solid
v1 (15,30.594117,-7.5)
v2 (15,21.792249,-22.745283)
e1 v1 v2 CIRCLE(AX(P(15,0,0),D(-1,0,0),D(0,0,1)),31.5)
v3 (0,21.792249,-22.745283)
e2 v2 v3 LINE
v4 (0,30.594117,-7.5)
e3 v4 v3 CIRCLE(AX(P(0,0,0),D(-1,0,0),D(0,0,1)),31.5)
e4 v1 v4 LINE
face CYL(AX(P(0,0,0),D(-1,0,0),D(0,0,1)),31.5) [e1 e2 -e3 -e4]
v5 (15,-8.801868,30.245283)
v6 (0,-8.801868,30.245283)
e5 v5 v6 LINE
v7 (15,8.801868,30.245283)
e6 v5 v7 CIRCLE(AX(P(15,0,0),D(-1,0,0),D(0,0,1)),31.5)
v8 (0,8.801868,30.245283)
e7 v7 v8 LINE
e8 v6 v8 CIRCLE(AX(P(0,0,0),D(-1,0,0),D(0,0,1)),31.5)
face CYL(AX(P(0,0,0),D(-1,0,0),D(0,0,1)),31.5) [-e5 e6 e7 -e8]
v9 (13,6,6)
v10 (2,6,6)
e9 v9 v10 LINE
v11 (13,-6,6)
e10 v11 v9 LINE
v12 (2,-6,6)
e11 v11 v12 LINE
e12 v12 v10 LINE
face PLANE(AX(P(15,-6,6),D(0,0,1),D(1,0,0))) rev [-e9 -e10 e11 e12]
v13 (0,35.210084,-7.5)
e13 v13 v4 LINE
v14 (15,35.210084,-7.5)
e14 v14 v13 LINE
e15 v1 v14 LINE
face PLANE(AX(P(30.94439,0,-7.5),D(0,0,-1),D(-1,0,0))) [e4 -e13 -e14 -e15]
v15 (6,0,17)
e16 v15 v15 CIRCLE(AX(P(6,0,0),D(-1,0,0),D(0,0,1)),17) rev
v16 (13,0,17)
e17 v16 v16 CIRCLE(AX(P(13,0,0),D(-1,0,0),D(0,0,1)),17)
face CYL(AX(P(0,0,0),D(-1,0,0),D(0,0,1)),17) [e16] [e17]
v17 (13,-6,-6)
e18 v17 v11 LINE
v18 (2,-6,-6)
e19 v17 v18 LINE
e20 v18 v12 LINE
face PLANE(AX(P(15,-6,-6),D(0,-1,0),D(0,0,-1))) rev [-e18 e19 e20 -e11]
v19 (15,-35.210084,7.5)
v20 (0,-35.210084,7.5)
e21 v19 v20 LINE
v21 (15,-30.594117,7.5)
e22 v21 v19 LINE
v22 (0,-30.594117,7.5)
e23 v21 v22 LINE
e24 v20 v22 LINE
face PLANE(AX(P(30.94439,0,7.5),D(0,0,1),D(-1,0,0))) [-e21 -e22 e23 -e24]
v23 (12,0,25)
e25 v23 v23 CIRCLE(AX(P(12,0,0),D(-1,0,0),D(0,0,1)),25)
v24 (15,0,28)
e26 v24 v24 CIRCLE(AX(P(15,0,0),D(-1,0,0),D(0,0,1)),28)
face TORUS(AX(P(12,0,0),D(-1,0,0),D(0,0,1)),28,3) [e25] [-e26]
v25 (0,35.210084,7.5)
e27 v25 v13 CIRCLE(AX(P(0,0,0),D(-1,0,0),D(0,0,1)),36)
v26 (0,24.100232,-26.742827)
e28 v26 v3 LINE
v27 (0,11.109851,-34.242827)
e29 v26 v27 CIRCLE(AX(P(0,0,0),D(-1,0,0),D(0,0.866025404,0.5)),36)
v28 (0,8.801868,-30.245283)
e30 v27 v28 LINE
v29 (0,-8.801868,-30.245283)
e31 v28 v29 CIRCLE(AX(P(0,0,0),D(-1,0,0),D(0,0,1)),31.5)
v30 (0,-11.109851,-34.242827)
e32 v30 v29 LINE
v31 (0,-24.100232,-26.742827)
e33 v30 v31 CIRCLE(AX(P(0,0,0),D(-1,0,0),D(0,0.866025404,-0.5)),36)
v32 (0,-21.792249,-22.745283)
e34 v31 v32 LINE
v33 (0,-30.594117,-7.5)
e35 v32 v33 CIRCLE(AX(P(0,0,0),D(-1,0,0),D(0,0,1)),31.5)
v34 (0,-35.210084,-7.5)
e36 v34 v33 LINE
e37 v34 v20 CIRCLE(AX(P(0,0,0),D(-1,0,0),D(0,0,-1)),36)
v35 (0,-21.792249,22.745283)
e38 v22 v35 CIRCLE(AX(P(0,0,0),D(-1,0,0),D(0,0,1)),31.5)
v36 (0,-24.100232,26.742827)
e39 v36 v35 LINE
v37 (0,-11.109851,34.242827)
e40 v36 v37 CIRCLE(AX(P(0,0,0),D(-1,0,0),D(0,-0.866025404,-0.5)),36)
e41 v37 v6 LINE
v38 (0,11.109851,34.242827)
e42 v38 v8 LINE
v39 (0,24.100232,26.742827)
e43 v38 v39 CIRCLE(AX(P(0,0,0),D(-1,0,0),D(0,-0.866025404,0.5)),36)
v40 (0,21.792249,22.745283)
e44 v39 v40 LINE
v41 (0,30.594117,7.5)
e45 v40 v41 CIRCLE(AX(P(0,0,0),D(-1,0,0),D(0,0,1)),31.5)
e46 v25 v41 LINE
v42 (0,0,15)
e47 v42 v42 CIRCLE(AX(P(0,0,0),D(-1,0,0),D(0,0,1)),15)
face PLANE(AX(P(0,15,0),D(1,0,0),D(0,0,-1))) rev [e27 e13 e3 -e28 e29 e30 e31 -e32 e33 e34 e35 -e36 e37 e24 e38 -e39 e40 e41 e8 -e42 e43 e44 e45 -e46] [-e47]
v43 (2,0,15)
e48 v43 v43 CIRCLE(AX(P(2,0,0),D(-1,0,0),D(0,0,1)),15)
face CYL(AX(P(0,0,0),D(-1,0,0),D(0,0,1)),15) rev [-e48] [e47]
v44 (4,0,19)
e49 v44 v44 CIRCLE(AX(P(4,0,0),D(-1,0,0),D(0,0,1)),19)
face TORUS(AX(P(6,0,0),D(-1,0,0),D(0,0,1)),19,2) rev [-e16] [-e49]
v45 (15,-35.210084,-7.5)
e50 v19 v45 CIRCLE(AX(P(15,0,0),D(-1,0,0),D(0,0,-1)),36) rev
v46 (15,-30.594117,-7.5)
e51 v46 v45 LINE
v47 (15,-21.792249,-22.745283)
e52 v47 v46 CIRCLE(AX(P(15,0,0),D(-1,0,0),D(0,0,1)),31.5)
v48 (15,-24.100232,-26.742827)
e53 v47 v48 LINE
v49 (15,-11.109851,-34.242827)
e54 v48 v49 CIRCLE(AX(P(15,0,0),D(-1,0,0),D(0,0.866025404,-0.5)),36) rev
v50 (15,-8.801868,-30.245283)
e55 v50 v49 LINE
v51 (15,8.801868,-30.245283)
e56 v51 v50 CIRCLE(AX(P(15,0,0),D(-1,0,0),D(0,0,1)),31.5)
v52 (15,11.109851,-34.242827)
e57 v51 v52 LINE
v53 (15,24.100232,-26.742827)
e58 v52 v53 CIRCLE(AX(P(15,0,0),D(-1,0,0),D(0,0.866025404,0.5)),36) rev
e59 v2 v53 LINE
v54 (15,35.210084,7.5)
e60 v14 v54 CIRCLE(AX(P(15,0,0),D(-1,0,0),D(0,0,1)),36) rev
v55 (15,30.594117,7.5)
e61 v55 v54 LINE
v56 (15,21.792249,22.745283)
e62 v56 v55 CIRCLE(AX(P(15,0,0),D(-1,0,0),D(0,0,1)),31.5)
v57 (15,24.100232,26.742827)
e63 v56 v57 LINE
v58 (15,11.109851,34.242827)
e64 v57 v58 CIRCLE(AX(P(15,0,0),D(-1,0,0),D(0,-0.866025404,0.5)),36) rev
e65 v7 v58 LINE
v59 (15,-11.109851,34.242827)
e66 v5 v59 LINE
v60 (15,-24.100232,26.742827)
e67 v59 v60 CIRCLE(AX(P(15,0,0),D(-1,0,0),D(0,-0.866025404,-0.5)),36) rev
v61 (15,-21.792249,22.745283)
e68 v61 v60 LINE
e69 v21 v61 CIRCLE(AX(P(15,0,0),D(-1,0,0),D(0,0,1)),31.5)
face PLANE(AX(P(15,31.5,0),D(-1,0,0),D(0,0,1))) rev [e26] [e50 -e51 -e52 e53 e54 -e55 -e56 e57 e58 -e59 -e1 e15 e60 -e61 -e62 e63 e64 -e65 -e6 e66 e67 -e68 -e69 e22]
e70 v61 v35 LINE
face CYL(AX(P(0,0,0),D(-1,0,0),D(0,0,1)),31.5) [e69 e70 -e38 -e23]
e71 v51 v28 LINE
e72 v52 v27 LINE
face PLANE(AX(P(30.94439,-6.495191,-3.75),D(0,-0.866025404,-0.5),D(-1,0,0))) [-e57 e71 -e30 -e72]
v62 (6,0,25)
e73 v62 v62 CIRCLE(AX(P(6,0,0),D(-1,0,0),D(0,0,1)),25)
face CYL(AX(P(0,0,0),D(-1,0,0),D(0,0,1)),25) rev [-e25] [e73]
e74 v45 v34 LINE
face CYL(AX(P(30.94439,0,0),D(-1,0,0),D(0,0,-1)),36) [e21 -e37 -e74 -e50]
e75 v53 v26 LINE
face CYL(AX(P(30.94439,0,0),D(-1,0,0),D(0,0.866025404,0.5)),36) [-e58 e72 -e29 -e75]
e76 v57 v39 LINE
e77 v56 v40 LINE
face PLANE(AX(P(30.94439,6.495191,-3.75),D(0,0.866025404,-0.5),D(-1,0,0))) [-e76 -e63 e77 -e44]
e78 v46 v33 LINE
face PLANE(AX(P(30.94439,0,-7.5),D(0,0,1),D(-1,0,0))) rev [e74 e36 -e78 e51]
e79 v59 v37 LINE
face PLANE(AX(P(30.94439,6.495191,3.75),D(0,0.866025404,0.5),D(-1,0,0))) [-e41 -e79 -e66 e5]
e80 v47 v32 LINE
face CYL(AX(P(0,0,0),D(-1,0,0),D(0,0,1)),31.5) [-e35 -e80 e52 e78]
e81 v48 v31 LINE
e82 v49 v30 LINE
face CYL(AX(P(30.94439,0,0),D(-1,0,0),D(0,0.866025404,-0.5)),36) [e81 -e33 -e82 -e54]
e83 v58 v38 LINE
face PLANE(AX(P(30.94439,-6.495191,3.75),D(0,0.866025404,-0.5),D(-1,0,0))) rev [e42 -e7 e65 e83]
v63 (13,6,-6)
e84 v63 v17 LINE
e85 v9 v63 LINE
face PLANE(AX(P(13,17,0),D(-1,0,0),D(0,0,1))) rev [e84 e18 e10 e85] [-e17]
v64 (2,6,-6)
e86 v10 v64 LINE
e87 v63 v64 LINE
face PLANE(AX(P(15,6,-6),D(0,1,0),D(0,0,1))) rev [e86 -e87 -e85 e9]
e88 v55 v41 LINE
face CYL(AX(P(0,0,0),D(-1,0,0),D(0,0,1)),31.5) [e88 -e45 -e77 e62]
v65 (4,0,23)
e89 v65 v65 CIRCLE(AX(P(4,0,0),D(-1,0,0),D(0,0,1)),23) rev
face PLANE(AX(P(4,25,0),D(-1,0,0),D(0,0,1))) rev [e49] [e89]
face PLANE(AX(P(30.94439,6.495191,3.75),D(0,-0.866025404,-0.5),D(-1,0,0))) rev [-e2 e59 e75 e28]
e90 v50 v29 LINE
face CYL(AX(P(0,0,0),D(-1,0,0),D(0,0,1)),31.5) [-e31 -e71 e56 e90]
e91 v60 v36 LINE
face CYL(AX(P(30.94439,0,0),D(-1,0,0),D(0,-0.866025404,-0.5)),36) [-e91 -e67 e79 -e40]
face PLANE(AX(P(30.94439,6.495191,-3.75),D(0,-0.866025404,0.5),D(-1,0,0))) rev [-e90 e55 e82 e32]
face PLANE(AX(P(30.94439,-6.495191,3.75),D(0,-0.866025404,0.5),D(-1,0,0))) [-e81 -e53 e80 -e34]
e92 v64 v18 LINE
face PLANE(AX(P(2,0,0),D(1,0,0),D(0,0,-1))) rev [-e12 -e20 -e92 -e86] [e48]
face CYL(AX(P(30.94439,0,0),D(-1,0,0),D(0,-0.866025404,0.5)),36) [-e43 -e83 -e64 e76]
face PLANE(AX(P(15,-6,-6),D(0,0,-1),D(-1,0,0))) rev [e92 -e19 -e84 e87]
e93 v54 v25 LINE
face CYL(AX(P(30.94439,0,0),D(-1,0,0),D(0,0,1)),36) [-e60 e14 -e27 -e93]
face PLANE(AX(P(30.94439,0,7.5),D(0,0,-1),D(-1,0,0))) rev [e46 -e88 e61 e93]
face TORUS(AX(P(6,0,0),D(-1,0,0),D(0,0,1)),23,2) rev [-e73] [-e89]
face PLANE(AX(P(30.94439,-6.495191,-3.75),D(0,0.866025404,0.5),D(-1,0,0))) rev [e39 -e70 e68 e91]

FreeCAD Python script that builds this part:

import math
import FreeCAD as App
import Part
import Sketcher

V = App.Vector
Q = App.Units.Quantity


def edges_at(feature, points):
    """Names of the edges that pass closest to the given points."""
    edges = feature.Shape.Edges
    near = lambda p: min(range(len(edges)), key=lambda i: edges[i].distToShape(Part.Vertex(*p))[0])
    return sorted({f"Edge{near(p) + 1}" for p in points})


def add_polygon(sketch, points):
    """Adds a closed chain of lines whose ends are joined by coincident constraints."""
    first, n = sketch.GeometryCount, len(points)
    for a, b in zip(points, points[1:] + points[:1]):
        sketch.addGeometry(Part.LineSegment(App.Vector(*a, 0), App.Vector(*b, 0)), False)
    for i in range(n):
        sketch.addConstraint(Sketcher.Constraint("Coincident", first + i, 2, first + (i + 1) % n, 1))

doc = App.newDocument("Part")
body = doc.addObject("PartDesign::Body", "Body")

sketch1 = body.newObject("Sketcher::SketchObject", "Sketch")
sketch1.AttachmentSupport = (doc.getObject("XY_Plane"), [""])
sketch1.MapMode = "FlatFace"
sketch1.addGeometry([
    Part.LineSegment(V(2, 15, 0), V(2, 0, 0)),
    Part.LineSegment(V(2, 0, 0), V(13, 0, 0)),
    Part.LineSegment(V(13, 0, 0), V(13, 17, 0)),
    Part.LineSegment(V(13, 17, 0), V(4, 17, 0)),
    Part.LineSegment(V(4, 17, 0), V(4, 25, 0)),
    Part.LineSegment(V(4, 25, 0), V(12, 25, 0)),
    Part.ArcOfCircle(Part.Circle(V(12, 28, 0), V(0, 0, 1), 3), math.radians(-90), math.radians(0)),
    Part.LineSegment(V(15, 28, 0), V(15, 31.5, 0)),
    Part.LineSegment(V(15, 31.5, 0), V(0, 31.5, 0)),
    Part.LineSegment(V(0, 31.5, 0), V(0, 15, 0)),
    Part.LineSegment(V(0, 15, 0), V(2, 15, 0)),
], False)
sketch1.addConstraint([
    Sketcher.Constraint("Coincident", 0, 2, 1, 1),
    Sketcher.Constraint("Coincident", 1, 2, 2, 1),
    Sketcher.Constraint("Coincident", 2, 2, 3, 1),
    Sketcher.Constraint("Coincident", 3, 2, 4, 1),
    Sketcher.Constraint("Coincident", 4, 2, 5, 1),
    Sketcher.Constraint("Tangent", 5, 2, 6, 1),
    Sketcher.Constraint("Tangent", 6, 2, 7, 1),
    Sketcher.Constraint("Coincident", 7, 2, 8, 1),
    Sketcher.Constraint("Coincident", 8, 2, 9, 1),
    Sketcher.Constraint("Coincident", 9, 2, 10, 1),
    Sketcher.Constraint("Coincident", 10, 2, 0, 1),
    Sketcher.Constraint("Vertical", 0),
    Sketcher.Constraint("Horizontal", 1),
    Sketcher.Constraint("Vertical", 2),
    Sketcher.Constraint("Horizontal", 3),
    Sketcher.Constraint("Vertical", 4),
    Sketcher.Constraint("Horizontal", 5),
    Sketcher.Constraint("Vertical", 7),
    Sketcher.Constraint("Horizontal", 8),
    Sketcher.Constraint("Vertical", 9),
    Sketcher.Constraint("Horizontal", 10),
    Sketcher.Constraint("PointOnObject", 0, 2, -1),
    Sketcher.Constraint("PointOnObject", 8, 2, -2),
    Sketcher.Constraint("Equal", 8, 0),
    Sketcher.Constraint("Equal", 5, 4),
    Sketcher.Constraint("Radius", 6, Q("3 mm")),
    Sketcher.Constraint("DistanceX", 1, 1, 1, 2, Q("11 mm")),
    Sketcher.Constraint("DistanceX", 3, 2, 3, 1, Q("9 mm")),
    Sketcher.Constraint("DistanceX", 5, 1, 5, 2, Q("8 mm")),
    Sketcher.Constraint("DistanceX", 8, 2, 8, 1, Q("15 mm")),
    Sketcher.Constraint("DistanceY", 2, 1, 2, 2, Q("17 mm")),
    Sketcher.Constraint("DistanceY", 7, 1, 7, 2, Q("3.5 mm")),
])
revolution = body.newObject("PartDesign::Revolution", "Revolution")
revolution.Profile = sketch1
revolution.ReferenceAxis = (sketch1, ["H_Axis"])
revolution.Angle = 360

sketch2 = body.newObject("Sketcher::SketchObject", "Sketch001")
sketch2.AttachmentSupport = (doc.getObject("YZ_Plane"), [""])
sketch2.MapMode = "FlatFace"
sketch2.AttachmentOffset = App.Placement(V(0, 0, 2), App.Rotation())
add_polygon(sketch2, [(6, -6), (-6, -6), (-6, 6), (6, 6)])
sketch2.addConstraint([
    Sketcher.Constraint("Horizontal", 0),
    Sketcher.Constraint("Vertical", 1),
    Sketcher.Constraint("Horizontal", 2),
    Sketcher.Constraint("Vertical", 3),
    Sketcher.Constraint("Symmetric", 0, 2, 2, 2, -1, 1),
    Sketcher.Constraint("Equal", 2, 1),
    Sketcher.Constraint("DistanceX", 0, 2, 0, 1, Q("12 mm")),
])
pocket1 = body.newObject("PartDesign::Pocket", "Pocket")
pocket1.Profile = sketch2
pocket1.Type = "ThroughAll"
pocket1.Reversed = True

sketch3 = body.newObject("Sketcher::SketchObject", "Sketch002")
sketch3.AttachmentSupport = (doc.getObject("YZ_Plane"), [""])
sketch3.MapMode = "FlatFace"
sketch3.AttachmentOffset = App.Placement(V(0, 0, 15), App.Rotation())
sketch3.addGeometry([
    Part.ArcOfCircle(Part.Circle(V(0, 0, 0), V(0, 0, 1), 36), math.radians(-12.024699), math.radians(12.024699)),
    Part.LineSegment(V(35.210084, -7.5, 0), V(30.594117, -7.5, 0)),
    Part.ArcOfCircle(Part.Circle(V(0, 0, 0), V(0, 0, 1), 31.5), math.radians(-13.774147), math.radians(13.774147)),
    Part.LineSegment(V(30.594117, 7.5, 0), V(35.210084, 7.5, 0)),
], False)
sketch3.addConstraint([
    Sketcher.Constraint("Coincident", 0, 1, 1, 1),
    Sketcher.Constraint("Coincident", 1, 2, 2, 1),
    Sketcher.Constraint("Coincident", 2, 2, 3, 1),
    Sketcher.Constraint("Coincident", 3, 2, 0, 2),
    Sketcher.Constraint("Horizontal", 1),
    Sketcher.Constraint("Horizontal", 3),
    Sketcher.Constraint("Coincident", 0, 3, -1, 1),
    Sketcher.Constraint("Coincident", 2, 3, -1, 1),
    Sketcher.Constraint("Vertical", 1, 2, 2, 2),
    Sketcher.Constraint("Radius", 0, Q("36 mm")),
    Sketcher.Constraint("Radius", 2, Q("31.5 mm")),
    Sketcher.Constraint("DistanceY", 1, 2, 2, 2, Q("15 mm")),
])
pad1 = body.newObject("PartDesign::Pad", "Pad")
pad1.Profile = sketch3
pad1.Length = 15
pad1.Reversed = True
doc.recompute()

polarpattern = body.newObject("PartDesign::PolarPattern", "PolarPattern")
polarpattern.Originals = [pad1]
polarpattern.Axis = (doc.getObject("X_Axis"), [""])
polarpattern.Angle = 360
polarpattern.Occurrences = 6
body.Tip = polarpattern
doc.recompute()

fillet = body.newObject("PartDesign::Fillet", "Fillet")
fillet.Base = (polarpattern, edges_at(polarpattern, [(4, 0, -17), (4, 0, -25)]))
fillet.Radius = 2

doc.recompute()
